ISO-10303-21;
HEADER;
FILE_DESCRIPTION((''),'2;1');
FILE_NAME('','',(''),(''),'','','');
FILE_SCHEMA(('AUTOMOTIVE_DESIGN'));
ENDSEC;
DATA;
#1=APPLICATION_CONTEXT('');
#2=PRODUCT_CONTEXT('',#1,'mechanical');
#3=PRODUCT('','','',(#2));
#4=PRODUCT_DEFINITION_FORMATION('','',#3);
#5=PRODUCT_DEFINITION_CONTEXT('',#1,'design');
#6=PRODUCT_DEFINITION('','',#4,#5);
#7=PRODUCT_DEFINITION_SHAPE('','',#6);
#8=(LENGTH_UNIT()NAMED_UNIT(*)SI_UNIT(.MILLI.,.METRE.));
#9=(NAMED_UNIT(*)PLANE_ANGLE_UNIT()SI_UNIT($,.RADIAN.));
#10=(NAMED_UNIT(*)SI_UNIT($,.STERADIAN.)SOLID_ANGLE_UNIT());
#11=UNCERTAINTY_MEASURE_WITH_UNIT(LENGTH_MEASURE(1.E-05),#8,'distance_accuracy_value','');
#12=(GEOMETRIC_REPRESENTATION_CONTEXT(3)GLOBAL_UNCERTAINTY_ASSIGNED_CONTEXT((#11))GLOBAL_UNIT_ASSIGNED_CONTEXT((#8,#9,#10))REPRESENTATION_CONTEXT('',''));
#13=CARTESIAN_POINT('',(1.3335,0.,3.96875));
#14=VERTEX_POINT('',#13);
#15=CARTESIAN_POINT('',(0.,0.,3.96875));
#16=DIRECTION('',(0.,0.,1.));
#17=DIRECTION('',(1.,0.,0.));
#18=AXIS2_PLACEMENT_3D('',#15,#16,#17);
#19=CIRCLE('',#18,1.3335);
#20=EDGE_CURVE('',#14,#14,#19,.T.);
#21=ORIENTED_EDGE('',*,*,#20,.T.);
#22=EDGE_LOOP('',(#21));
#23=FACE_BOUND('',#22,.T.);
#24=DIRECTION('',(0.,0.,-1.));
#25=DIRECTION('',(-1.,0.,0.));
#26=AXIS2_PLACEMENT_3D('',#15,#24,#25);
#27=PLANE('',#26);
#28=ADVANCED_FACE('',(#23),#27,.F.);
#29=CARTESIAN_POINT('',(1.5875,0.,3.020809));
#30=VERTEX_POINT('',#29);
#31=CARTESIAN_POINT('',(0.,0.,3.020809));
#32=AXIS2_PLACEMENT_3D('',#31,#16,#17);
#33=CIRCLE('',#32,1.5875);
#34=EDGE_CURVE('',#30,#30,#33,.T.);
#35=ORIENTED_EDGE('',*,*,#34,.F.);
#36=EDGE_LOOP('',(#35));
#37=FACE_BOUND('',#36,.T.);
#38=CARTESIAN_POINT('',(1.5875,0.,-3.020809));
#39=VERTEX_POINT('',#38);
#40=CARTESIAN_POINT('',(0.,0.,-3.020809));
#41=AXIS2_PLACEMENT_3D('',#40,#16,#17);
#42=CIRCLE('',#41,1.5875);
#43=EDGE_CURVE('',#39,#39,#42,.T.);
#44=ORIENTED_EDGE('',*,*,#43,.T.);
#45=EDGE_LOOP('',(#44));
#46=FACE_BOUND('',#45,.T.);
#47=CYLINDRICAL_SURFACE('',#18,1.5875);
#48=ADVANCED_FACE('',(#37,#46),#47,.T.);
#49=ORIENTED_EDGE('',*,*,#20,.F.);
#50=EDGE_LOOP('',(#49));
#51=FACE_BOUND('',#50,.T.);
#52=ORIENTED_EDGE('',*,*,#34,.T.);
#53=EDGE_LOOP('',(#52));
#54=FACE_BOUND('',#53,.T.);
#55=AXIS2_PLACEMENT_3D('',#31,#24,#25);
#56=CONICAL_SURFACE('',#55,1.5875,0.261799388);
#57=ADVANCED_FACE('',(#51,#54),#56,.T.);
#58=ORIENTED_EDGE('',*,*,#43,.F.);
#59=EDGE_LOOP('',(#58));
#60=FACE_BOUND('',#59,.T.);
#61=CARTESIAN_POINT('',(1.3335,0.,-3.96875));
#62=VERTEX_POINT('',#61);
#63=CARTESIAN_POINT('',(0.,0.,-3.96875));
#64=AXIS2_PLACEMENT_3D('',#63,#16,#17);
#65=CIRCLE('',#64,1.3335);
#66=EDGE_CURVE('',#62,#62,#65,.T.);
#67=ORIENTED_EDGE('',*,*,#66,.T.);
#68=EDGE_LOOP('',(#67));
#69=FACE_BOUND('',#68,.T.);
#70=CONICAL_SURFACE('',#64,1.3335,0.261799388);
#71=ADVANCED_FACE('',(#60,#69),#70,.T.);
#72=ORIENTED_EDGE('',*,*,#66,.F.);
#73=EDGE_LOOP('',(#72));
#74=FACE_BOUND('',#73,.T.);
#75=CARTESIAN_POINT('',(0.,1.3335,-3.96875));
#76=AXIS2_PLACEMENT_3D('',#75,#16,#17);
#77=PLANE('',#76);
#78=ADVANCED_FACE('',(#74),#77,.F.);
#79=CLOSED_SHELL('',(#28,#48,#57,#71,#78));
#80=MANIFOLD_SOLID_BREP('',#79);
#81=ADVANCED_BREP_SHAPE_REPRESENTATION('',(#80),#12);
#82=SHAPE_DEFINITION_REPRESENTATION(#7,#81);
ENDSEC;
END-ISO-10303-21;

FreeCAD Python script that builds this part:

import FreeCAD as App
import Part
import Sketcher
from FreeCAD import Vector
Q = App.Units.Quantity


def add_polygon(sketch, points):
    """Adds a closed chain of lines whose ends are joined by coincident constraints."""
    first, n = sketch.GeometryCount, len(points)
    for a, b in zip(points, points[1:] + points[:1]):
        sketch.addGeometry(Part.LineSegment(App.Vector(*a, 0), App.Vector(*b, 0)), False)
    for i in range(n):
        sketch.addConstraint(Sketcher.Constraint("Coincident", first + i, 2, first + (i + 1) % n, 1))

doc = App.newDocument("Part")
body = doc.addObject("PartDesign::Body", "Body")

sketch1 = body.newObject("Sketcher::SketchObject", "Sketch")
sketch1.AttachmentSupport = (doc.getObject("YZ_Plane"), [""])
sketch1.MapMode = "FlatFace"
add_polygon(sketch1, [(1.3335, 3.96875), (0, 3.96875), (0, -3.96875), (1.3335, -3.96875), (1.5875, -3.020809), (1.5875, 3.020809)])
sketch1.addConstraint([
    Sketcher.Constraint("Horizontal", 0),
    Sketcher.Constraint("Vertical", 1),
    Sketcher.Constraint("Horizontal", 2),
    Sketcher.Constraint("Vertical", 4),
    Sketcher.Constraint("Symmetric", 0, 2, 1, 2, -1, 1),
    Sketcher.Constraint("Vertical", 2, 2, 5, 2),
    Sketcher.Constraint("Equal", 3, 5),
    Sketcher.Constraint("Angle", 3, Q("75 deg")),
    Sketcher.Constraint("DistanceY", 1, 2, 1, 1, Q("0.3125 in")),
    Sketcher.Constraint("DistanceX", 2, 2, 3, 2, Q("0.01 in")),
    Sketcher.Constraint("DistanceX", 0, 2, 0, 1, Q("0.0525 in")),
])
revolution = body.newObject("PartDesign::Revolution", "Revolution")
revolution.Profile = sketch1
revolution.ReferenceAxis = (sketch1, ["V_Axis"])
revolution.Angle = 360

doc.recompute()
